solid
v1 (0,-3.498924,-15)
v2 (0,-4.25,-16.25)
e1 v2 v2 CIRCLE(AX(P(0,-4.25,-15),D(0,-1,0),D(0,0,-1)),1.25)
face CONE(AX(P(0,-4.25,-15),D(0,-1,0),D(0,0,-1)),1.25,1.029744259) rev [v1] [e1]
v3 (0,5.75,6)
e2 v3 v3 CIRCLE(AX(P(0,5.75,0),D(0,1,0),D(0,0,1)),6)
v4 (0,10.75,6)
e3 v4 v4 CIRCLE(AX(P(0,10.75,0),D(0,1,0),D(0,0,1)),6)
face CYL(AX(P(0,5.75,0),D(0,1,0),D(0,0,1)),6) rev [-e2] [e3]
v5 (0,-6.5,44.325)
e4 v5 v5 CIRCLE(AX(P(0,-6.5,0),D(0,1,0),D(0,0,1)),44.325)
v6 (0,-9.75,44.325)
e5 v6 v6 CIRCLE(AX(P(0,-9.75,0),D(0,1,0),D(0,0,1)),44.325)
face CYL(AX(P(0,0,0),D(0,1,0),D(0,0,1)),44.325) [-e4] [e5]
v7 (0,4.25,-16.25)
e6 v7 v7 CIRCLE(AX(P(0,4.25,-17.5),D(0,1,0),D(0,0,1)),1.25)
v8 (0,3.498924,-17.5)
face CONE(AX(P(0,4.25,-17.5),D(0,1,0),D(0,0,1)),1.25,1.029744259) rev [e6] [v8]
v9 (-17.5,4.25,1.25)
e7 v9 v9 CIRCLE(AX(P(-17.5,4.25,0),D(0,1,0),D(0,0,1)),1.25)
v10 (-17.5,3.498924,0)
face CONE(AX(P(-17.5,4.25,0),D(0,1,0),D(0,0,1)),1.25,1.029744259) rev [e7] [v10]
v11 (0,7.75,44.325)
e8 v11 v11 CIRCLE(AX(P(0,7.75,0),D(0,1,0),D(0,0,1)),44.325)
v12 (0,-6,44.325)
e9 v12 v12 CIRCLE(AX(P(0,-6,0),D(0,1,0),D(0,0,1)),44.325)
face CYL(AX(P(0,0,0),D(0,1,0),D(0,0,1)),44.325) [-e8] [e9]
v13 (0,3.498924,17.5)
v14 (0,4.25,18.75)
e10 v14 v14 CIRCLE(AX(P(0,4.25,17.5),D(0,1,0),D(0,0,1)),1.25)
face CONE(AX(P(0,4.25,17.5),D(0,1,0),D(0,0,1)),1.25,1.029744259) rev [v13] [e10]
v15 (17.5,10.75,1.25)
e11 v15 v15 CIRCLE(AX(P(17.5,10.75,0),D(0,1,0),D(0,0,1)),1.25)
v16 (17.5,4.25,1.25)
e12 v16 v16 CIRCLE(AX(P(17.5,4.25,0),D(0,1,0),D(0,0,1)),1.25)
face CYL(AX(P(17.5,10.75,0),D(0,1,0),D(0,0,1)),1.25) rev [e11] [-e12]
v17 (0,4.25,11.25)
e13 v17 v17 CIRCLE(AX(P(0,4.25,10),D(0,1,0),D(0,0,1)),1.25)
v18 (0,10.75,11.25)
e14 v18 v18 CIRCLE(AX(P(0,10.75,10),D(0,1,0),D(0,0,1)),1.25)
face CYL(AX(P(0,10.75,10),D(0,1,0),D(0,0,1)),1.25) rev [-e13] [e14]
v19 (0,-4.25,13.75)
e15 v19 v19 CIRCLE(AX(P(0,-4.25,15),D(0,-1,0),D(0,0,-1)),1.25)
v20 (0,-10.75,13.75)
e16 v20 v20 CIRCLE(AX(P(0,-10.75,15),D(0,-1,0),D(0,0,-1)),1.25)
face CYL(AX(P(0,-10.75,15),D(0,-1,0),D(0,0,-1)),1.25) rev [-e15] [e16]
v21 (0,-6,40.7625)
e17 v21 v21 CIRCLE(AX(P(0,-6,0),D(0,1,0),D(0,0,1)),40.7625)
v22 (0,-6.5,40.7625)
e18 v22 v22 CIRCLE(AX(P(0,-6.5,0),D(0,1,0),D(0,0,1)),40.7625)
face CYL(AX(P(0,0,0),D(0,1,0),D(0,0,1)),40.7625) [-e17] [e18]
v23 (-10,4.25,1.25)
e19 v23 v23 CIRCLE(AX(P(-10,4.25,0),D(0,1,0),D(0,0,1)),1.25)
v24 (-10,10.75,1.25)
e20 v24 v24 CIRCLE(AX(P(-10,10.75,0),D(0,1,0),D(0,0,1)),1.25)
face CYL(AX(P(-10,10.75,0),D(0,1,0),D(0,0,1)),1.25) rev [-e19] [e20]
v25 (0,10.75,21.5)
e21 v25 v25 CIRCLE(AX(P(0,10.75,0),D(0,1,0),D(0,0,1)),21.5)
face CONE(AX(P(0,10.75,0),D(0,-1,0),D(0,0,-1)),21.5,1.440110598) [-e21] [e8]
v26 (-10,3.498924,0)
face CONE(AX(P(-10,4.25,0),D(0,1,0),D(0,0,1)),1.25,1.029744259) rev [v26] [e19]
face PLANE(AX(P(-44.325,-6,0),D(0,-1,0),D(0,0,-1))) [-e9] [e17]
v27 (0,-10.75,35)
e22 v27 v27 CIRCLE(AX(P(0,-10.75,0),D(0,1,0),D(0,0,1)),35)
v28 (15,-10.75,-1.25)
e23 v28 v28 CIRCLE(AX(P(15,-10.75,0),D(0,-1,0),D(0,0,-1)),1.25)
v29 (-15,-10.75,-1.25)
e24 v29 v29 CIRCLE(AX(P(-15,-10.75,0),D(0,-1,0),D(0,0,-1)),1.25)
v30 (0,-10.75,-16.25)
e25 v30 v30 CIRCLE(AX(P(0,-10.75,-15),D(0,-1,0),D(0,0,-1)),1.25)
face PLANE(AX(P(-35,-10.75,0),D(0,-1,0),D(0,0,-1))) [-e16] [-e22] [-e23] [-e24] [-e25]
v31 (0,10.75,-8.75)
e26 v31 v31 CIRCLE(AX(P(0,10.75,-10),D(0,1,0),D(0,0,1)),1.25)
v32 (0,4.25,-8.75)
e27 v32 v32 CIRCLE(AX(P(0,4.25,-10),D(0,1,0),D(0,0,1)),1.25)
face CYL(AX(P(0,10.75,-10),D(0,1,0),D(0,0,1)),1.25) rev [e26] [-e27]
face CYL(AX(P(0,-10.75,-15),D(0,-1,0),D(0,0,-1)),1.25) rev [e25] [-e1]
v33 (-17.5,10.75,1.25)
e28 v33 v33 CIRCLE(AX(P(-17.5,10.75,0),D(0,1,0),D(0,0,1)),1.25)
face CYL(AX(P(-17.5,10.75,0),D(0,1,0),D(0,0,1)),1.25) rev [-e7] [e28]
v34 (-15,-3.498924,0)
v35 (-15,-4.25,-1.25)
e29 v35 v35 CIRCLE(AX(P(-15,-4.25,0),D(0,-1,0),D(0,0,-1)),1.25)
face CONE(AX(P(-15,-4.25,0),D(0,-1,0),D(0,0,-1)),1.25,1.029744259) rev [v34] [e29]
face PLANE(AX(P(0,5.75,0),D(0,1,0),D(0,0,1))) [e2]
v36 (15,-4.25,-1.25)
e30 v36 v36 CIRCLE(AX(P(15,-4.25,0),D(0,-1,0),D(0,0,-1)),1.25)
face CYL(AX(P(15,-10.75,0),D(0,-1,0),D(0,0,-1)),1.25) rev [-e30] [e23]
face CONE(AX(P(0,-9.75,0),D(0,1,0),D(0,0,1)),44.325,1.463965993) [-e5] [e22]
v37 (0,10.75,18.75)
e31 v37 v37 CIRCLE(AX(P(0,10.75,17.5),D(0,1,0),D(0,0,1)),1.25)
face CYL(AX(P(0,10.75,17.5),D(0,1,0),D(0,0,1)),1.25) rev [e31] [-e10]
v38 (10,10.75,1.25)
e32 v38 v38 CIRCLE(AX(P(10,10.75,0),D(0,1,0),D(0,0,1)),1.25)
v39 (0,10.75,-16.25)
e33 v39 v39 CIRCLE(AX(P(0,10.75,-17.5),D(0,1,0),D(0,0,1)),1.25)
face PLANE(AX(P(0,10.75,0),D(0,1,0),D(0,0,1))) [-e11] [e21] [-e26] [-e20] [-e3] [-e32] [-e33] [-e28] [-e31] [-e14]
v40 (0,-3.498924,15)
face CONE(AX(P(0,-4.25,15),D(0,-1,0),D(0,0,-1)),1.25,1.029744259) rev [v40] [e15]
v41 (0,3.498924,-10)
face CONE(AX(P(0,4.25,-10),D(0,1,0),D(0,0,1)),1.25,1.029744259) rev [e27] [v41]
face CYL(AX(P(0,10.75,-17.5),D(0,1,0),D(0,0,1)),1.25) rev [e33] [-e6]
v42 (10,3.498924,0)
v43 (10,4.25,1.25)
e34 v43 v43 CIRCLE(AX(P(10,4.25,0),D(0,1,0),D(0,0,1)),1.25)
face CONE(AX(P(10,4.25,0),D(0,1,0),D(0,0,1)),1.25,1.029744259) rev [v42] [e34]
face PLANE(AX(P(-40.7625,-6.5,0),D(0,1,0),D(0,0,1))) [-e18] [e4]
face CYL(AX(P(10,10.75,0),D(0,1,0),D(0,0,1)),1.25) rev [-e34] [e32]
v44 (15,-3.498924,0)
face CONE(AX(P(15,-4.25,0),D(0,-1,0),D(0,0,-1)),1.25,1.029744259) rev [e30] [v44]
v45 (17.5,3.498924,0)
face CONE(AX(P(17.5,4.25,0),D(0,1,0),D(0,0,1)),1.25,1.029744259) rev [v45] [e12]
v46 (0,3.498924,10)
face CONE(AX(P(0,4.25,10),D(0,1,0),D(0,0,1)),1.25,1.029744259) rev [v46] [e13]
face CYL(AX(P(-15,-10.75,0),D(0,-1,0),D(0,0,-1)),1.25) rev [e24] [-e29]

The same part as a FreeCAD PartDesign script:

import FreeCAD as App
import Part
import Sketcher

V = App.Vector

doc = App.newDocument("Part")
params = doc.addObject("Spreadsheet::Sheet", "Params")
for row, (alias, value) in enumerate([
    ("sketch1_width", "35 mm"),
    ("sketch1_width2", "21.5 mm"),
    ("sketch1_height", "0.5 mm"),
    ("revolution_angle", "360 deg"),
    ("sketch2_diameter", "2.5 mm"),
    ("hole_diameter", "2.5 mm"),
    ("hole_depth", "6.5 mm"),
    ("sketch3_diameter", "12 mm"),
    ("pocket1_length", "5 mm"),
    ("sketch4_diameter", "2.5 mm"),
    ("hole2_diameter", "2.5 mm"),
    ("hole2_depth", "6.5 mm"),
], start=1):
    params.set(f"A{row}", alias)
    params.set(f"B{row}", "=" + value)
    params.setAlias(f"B{row}", alias)

body = doc.addObject("PartDesign::Body", "Body")

# Sketch on XY plane
sketch1 = body.newObject("Sketcher::SketchObject", "Sketch")
sketch1.AttachmentSupport = (doc.getObject("XY_Plane"), [""])
sketch1.MapMode = "FlatFace"
sketch1.addGeometry([
    Part.LineSegment(V(0, -10.8, 0), V(0, 10.8, 0)),  # 0
    Part.LineSegment(V(0, 10.8, 0), V(-21.5, 10.8, 0)),  # 1
    Part.LineSegment(V(-21.5, 10.8, 0), V(-44.3, 7.8, 0)),  # 2
    Part.LineSegment(V(-44.3, 7.8, 0), V(-44.3, -6, 0)),  # 3
    Part.LineSegment(V(-44.3, -6, 0), V(-40.8, -6, 0)),  # 4
    Part.LineSegment(V(-40.8, -6, 0), V(-40.8, -6.5, 0)),  # 5
    Part.LineSegment(V(-40.8, -6.5, 0), V(-44.3, -6.5, 0)),  # 6
    Part.LineSegment(V(-44.3, -6.5, 0), V(-44.3, -9.8, 0)),  # 7
    Part.LineSegment(V(-44.3, -9.8, 0), V(-35, -10.8, 0)),  # 8
    Part.LineSegment(V(-35, -10.8, 0), V(0, -10.8, 0)),  # 9
], False)
sketch1.addConstraint([
    Sketcher.Constraint("Coincident", 0, 2, 1, 1),
    Sketcher.Constraint("Coincident", 1, 2, 2, 1),
    Sketcher.Constraint("Coincident", 2, 2, 3, 1),
    Sketcher.Constraint("Coincident", 3, 2, 4, 1),
    Sketcher.Constraint("Coincident", 4, 2, 5, 1),
    Sketcher.Constraint("Coincident", 5, 2, 6, 1),
    Sketcher.Constraint("Coincident", 6, 2, 7, 1),
    Sketcher.Constraint("Coincident", 7, 2, 8, 1),
    Sketcher.Constraint("Coincident", 8, 2, 9, 1),
    Sketcher.Constraint("Coincident", 9, 2, 0, 1),
    Sketcher.Constraint("Vertical", 0),
    Sketcher.Constraint("Horizontal", 1),
    Sketcher.Constraint("Vertical", 3),
    Sketcher.Constraint("Horizontal", 4),
    Sketcher.Constraint("Vertical", 5),
    Sketcher.Constraint("Horizontal", 6),
    Sketcher.Constraint("Vertical", 7),
    Sketcher.Constraint("Horizontal", 9),
    Sketcher.Constraint("Symmetric", 0, 2, 9, 2, -1, 1),
    Sketcher.Constraint("Vertical", 3, 2, 6, 2),
    Sketcher.Constraint("Equal", 1, 0),
    Sketcher.Constraint("DistanceX", 9, 1, 9, 2, 35.0),
    Sketcher.Constraint("DistanceX", 1, 2, 1, 1, 21.5),
    Sketcher.Constraint("DistanceY", 5, 2, 5, 1, 0.5),
    Sketcher.Constraint("DistanceY", 3, 2, -1, 1, 6.0),
    Sketcher.Constraint("DistanceY", 2, 2, 1, 2, 3.0),
    Sketcher.Constraint("DistanceY", 8, 2, 7, 2, 1.0),
    Sketcher.Constraint("DistanceX", 4, 1, 4, 2, 3.5625),
    Sketcher.Constraint("DistanceX", 2, 2, -1, 1, 44.325),
])
sketch1.setExpression("Constraints[21]", "Params.sketch1_width")
sketch1.setExpression("Constraints[22]", "Params.sketch1_width2")
sketch1.setExpression("Constraints[23]", "Params.sketch1_height")
revolution = body.newObject("PartDesign::Revolution", "Revolution")
revolution.Profile = sketch1
revolution.ReferenceAxis = (sketch1, ["V_Axis"])
revolution.setExpression("Angle", "Params.revolution_angle")

# Sketch on XZ plane
sketch2 = body.newObject("Sketcher::SketchObject", "Sketch001")
sketch2.AttachmentSupport = (doc.getObject("XZ_Plane"), [""])
sketch2.MapMode = "FlatFace"
sketch2.AttachmentOffset = App.Placement(V(0, 0, -10.75), App.Rotation())
sketch2.addGeometry([
    Part.Circle(V(0, -17.5, 0), V(0, 0, 1), 1.2),  # 0
    Part.Circle(V(0, -10, 0), V(0, 0, 1), 1.2),  # 1
    Part.Circle(V(17.5, 0, 0), V(0, 0, 1), 1.2),  # 2
    Part.Circle(V(10, 0, 0), V(0, 0, 1), 1.2),  # 3
    Part.Circle(V(0, 17.5, 0), V(0, 0, 1), 1.2),  # 4
    Part.Circle(V(0, 10, 0), V(0, 0, 1), 1.2),  # 5
    Part.Circle(V(-17.5, 0, 0), V(0, 0, 1), 1.2),  # 6
    Part.Circle(V(-10, 0, 0), V(0, 0, 1), 1.2),  # 7
], False)
sketch2.addConstraint([
    Sketcher.Constraint("Equal", 0, 1),
    Sketcher.Constraint("Equal", 1, 2),
    Sketcher.Constraint("Equal", 2, 3),
    Sketcher.Constraint("Equal", 3, 4),
    Sketcher.Constraint("Equal", 4, 5),
    Sketcher.Constraint("Equal", 5, 6),
    Sketcher.Constraint("Equal", 6, 7),
    Sketcher.Constraint("Symmetric", 0, 3, 4, 3, -1, 1),
    Sketcher.Constraint("Symmetric", 1, 3, 5, 3, -1, 1),
    Sketcher.Constraint("Symmetric", 2, 3, 6, 3, -1, 1),
    Sketcher.Constraint("Symmetric", 3, 3, 7, 3, -1, 1),
    Sketcher.Constraint("PointOnObject", 0, 3, -2),
    Sketcher.Constraint("PointOnObject", 1, 3, -2),
    Sketcher.Constraint("PointOnObject", 2, 3, -1),
    Sketcher.Constraint("PointOnObject", 3, 3, -1),
    Sketcher.Constraint("Diameter", 0, 2.5),
    Sketcher.Constraint("DistanceY", 1, 3, -1, 1, 10.0),
    Sketcher.Constraint("DistanceX", -1, 1, 3, 3, 10.0),
    Sketcher.Constraint("DistanceY", 0, 3, 4, 3, 35.0),
    Sketcher.Constraint("DistanceX", -1, 1, 2, 3, 17.5),
])
sketch2.setExpression("Constraints[15]", "Params.sketch2_diameter")
doc.recompute()
hole = body.newObject("PartDesign::Hole", "Hole")
hole.Profile = sketch2
hole.ThreadType = "None"
hole.setExpression("Diameter", "Params.hole_diameter")
hole.DepthType = "Dimension"
hole.setExpression("Depth", "Params.hole_depth")
hole.DrillPoint = "Angled"
hole.DrillPointAngle = 118
hole.Reversed = True

# Sketch on XZ plane
sketch3 = body.newObject("Sketcher::SketchObject", "Sketch002")
sketch3.AttachmentSupport = (doc.getObject("XZ_Plane"), [""])
sketch3.MapMode = "FlatFace"
sketch3.AttachmentOffset = App.Placement(V(0, 0, -10.75), App.Rotation())
sketch3.addGeometry(Part.Circle(V(0, 0, 0), V(0, 0, 1), 6), False)
sketch3.addConstraint([
    Sketcher.Constraint("Coincident", 0, 3, -1, 1),
    Sketcher.Constraint("Diameter", 0, 12.0),
])
sketch3.setExpression("Constraints[1]", "Params.sketch3_diameter")
pocket1 = body.newObject("PartDesign::Pocket", "Pocket")
pocket1.Profile = sketch3
pocket1.setExpression("Length", "Params.pocket1_length")
pocket1.Reversed = True

# Sketch on XZ plane
sketch4 = body.newObject("Sketcher::SketchObject", "Sketch003")
sketch4.AttachmentSupport = (doc.getObject("XZ_Plane"), [""])
sketch4.MapMode = "FlatFace"
sketch4.AttachmentOffset = App.Placement(V(0, 0, 10.75), App.Rotation())
sketch4.addGeometry([
    Part.Circle(V(0, -15, 0), V(0, 0, 1), 1.2),
    Part.Circle(V(-15, 0, 0), V(0, 0, 1), 1.2),
    Part.Circle(V(0, 15, 0), V(0, 0, 1), 1.2),
    Part.Circle(V(15, 0, 0), V(0, 0, 1), 1.2),
], False)
sketch4.addConstraint([
    Sketcher.Constraint("Equal", 0, 1),
    Sketcher.Constraint("Equal", 1, 2),
    Sketcher.Constraint("Equal", 2, 3),
    Sketcher.Constraint("Symmetric", 0, 3, 2, 3, -1, 1),
    Sketcher.Constraint("Symmetric", 1, 3, 3, 3, -1, 1),
    Sketcher.Constraint("PointOnObject", 0, 3, -2),
    Sketcher.Constraint("PointOnObject", 1, 3, -1),
    Sketcher.Constraint("Diameter", 0, 2.5),
    Sketcher.Constraint("DistanceY", 0, 3, -1, 1, 15.0),
    Sketcher.Constraint("DistanceX", 1, 3, -1, 1, 15.0),
])
sketch4.setExpression("Constraints[7]", "Params.sketch4_diameter")
doc.recompute()
hole2 = body.newObject("PartDesign::Hole", "Hole001")
hole2.Profile = sketch4
hole2.ThreadType = "None"
hole2.setExpression("Diameter", "Params.hole2_diameter")
hole2.DepthType = "Dimension"
hole2.setExpression("Depth", "Params.hole2_depth")
hole2.DrillPoint = "Angled"
hole2.DrillPointAngle = 118

doc.recompute()
